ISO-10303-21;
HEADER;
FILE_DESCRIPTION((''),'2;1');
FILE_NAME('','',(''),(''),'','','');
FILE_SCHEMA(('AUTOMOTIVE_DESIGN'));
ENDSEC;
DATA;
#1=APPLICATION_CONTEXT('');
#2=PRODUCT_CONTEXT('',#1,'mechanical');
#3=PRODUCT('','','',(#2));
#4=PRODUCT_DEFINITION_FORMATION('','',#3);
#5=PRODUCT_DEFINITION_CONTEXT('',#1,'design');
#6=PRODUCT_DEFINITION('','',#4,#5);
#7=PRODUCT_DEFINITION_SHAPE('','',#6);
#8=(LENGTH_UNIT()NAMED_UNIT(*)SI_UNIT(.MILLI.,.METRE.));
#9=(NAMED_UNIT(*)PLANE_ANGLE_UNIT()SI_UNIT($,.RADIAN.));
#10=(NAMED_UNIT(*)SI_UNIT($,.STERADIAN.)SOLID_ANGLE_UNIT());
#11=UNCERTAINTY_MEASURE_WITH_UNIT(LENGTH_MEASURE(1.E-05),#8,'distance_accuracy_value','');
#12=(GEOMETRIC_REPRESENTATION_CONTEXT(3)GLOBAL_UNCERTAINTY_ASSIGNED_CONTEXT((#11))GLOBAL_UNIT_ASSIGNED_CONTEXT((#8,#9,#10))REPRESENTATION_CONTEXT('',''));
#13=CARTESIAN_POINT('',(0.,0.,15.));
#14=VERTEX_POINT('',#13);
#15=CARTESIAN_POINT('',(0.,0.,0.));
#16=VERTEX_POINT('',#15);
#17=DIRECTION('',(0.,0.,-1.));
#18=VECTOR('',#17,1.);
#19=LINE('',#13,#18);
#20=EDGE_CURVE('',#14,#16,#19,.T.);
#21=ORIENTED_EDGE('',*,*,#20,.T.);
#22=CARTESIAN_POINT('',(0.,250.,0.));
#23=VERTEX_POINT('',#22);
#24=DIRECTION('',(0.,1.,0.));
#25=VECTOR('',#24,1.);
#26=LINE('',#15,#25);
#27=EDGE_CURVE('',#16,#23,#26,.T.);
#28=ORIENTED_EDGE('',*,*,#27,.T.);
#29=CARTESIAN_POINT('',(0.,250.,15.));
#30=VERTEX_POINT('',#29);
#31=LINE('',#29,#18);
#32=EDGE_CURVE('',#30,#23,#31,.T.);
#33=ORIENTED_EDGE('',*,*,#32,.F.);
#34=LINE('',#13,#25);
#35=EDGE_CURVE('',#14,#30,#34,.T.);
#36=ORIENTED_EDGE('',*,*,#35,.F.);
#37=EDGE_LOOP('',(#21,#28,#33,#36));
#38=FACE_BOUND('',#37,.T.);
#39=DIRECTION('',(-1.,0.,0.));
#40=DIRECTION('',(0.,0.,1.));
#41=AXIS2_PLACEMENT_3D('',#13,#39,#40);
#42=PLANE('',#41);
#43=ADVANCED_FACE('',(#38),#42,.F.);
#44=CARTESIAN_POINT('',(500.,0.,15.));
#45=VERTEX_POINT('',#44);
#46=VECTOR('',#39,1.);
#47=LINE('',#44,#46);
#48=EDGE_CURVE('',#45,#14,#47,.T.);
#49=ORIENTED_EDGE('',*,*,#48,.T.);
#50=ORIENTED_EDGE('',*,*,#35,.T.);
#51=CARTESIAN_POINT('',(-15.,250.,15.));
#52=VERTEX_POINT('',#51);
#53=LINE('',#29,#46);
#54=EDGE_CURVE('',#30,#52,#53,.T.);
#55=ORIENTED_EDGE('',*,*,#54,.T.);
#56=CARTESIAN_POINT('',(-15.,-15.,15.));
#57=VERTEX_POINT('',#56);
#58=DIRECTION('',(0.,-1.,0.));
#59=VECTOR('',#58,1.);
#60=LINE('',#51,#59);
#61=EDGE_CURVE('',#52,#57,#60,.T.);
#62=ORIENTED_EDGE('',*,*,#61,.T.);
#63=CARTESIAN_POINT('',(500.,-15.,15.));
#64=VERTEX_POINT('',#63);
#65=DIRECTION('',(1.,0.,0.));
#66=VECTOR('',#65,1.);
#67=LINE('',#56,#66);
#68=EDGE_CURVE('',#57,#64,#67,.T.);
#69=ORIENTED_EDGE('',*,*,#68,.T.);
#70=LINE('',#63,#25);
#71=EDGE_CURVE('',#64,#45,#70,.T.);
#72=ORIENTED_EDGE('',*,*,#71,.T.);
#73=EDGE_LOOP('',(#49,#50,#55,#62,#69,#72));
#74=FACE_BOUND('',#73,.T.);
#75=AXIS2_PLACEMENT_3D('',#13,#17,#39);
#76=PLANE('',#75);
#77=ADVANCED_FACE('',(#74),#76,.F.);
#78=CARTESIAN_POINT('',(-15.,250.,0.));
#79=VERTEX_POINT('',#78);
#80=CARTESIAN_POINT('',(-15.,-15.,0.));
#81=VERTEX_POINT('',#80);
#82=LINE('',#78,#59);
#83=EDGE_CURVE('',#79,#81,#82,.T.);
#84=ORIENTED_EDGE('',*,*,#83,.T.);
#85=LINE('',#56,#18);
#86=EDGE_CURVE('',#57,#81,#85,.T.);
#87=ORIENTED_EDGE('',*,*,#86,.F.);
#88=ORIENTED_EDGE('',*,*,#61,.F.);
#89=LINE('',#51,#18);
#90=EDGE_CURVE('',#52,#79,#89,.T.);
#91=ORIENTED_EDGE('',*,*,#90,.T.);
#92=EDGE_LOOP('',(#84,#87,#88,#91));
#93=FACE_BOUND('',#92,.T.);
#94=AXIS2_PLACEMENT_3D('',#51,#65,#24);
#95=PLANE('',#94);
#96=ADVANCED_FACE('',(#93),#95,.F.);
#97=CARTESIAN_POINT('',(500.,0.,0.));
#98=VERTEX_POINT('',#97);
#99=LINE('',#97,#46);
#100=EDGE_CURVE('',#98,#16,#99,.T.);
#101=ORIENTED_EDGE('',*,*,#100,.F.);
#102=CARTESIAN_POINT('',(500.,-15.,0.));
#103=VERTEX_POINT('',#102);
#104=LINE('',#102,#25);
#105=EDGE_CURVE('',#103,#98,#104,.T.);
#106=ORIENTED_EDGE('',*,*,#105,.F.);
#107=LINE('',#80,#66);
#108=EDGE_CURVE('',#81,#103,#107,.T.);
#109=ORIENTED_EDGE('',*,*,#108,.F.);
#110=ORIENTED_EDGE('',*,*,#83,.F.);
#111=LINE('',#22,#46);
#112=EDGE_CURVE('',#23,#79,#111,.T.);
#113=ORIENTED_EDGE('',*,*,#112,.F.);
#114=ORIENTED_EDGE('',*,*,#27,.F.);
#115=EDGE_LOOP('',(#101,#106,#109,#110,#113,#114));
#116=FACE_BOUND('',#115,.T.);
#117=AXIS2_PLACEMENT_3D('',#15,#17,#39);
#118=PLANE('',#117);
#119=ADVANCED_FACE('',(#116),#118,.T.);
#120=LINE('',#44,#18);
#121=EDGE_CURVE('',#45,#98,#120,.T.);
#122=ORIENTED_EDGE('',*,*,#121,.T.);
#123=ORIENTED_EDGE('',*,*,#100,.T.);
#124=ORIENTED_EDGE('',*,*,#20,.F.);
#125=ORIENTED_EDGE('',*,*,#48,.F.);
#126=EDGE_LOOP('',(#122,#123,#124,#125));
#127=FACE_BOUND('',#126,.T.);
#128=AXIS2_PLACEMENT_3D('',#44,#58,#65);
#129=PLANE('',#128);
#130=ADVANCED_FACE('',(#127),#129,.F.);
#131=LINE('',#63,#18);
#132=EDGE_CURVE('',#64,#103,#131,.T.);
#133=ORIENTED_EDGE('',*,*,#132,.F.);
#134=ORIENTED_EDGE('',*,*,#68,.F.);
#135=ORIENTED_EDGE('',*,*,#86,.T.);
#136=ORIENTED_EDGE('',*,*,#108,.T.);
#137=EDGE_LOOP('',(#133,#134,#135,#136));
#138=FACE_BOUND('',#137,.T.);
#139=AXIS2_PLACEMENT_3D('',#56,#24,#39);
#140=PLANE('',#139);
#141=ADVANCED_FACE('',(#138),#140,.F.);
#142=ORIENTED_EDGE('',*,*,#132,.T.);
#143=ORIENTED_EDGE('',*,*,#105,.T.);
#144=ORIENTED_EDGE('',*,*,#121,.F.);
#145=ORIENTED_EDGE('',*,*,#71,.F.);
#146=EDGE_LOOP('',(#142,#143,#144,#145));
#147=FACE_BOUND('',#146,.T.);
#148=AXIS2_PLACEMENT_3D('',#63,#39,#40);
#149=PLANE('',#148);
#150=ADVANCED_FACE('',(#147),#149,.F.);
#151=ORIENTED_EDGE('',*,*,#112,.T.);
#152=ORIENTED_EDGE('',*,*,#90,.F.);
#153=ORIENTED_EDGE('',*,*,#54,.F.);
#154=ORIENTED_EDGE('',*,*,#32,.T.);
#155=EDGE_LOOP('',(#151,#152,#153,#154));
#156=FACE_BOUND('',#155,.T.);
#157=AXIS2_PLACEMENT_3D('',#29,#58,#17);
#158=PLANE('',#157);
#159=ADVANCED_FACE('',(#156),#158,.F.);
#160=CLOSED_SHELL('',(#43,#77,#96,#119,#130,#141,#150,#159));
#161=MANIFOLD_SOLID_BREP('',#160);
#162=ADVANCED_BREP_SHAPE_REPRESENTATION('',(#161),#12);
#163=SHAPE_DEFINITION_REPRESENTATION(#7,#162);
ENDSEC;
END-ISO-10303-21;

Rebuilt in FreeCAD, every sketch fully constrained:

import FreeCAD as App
import Part
import Sketcher

V = App.Vector
Q = App.Units.Quantity

doc = App.newDocument("Part")
params = doc.addObject("Spreadsheet::Sheet", "Params")
for row, (alias, value) in enumerate([
    ("sketch1_width", "15 mm"),
    ("sketch1_width2", "515 mm"),
    ("sketch1_height", "250 mm"),
    ("pad1_length", "15 mm"),
], start=1):
    params.set(f"A{row}", alias)
    params.set(f"B{row}", "=" + value)
    params.setAlias(f"B{row}", alias)

body = doc.addObject("PartDesign::Body", "Body")

sketch1 = body.newObject("Sketcher::SketchObject", "Sketch")
sketch1.AttachmentSupport = (doc.getObject("XY_Plane"), [""])
sketch1.MapMode = "FlatFace"
sketch1.addGeometry([
    Part.LineSegment(V(0, 0, 0), V(0, 250, 0)),
    Part.LineSegment(V(0, 250, 0), V(-15, 250, 0)),
    Part.LineSegment(V(-15, 250, 0), V(-15, -15, 0)),
    Part.LineSegment(V(-15, -15, 0), V(500, -15, 0)),
    Part.LineSegment(V(500, -15, 0), V(500, 0, 0)),
    Part.LineSegment(V(500, 0, 0), V(0, 0, 0)),
], False)
sketch1.addConstraint([
    Sketcher.Constraint("Coincident", 0, 2, 1, 1),
    Sketcher.Constraint("Coincident", 1, 2, 2, 1),
    Sketcher.Constraint("Coincident", 2, 2, 3, 1),
    Sketcher.Constraint("Coincident", 3, 2, 4, 1),
    Sketcher.Constraint("Coincident", 4, 2, 5, 1),
    Sketcher.Constraint("Coincident", 5, 2, 0, 1),
    Sketcher.Constraint("Vertical", 0),
    Sketcher.Constraint("Horizontal", 1),
    Sketcher.Constraint("Vertical", 2),
    Sketcher.Constraint("Horizontal", 3),
    Sketcher.Constraint("Vertical", 4),
    Sketcher.Constraint("Horizontal", 5),
    Sketcher.Constraint("Coincident", 5, 2, -1, 1),
    Sketcher.Constraint("Equal", 1, 4),
    Sketcher.Constraint("DistanceX", 1, 2, 1, 1, Q("15 mm")),
    Sketcher.Constraint("DistanceX", 3, 1, 3, 2, Q("515 mm")),
    Sketcher.Constraint("DistanceY", 0, 1, 0, 2, Q("250 mm")),
])
sketch1.setExpression("Constraints[14]", "Params.sketch1_width")
sketch1.setExpression("Constraints[15]", "Params.sketch1_width2")
sketch1.setExpression("Constraints[16]", "Params.sketch1_height")
pad1 = body.newObject("PartDesign::Pad", "Pad")
pad1.Profile = sketch1
pad1.setExpression("Length", "Params.pad1_length")

doc.recompute()
